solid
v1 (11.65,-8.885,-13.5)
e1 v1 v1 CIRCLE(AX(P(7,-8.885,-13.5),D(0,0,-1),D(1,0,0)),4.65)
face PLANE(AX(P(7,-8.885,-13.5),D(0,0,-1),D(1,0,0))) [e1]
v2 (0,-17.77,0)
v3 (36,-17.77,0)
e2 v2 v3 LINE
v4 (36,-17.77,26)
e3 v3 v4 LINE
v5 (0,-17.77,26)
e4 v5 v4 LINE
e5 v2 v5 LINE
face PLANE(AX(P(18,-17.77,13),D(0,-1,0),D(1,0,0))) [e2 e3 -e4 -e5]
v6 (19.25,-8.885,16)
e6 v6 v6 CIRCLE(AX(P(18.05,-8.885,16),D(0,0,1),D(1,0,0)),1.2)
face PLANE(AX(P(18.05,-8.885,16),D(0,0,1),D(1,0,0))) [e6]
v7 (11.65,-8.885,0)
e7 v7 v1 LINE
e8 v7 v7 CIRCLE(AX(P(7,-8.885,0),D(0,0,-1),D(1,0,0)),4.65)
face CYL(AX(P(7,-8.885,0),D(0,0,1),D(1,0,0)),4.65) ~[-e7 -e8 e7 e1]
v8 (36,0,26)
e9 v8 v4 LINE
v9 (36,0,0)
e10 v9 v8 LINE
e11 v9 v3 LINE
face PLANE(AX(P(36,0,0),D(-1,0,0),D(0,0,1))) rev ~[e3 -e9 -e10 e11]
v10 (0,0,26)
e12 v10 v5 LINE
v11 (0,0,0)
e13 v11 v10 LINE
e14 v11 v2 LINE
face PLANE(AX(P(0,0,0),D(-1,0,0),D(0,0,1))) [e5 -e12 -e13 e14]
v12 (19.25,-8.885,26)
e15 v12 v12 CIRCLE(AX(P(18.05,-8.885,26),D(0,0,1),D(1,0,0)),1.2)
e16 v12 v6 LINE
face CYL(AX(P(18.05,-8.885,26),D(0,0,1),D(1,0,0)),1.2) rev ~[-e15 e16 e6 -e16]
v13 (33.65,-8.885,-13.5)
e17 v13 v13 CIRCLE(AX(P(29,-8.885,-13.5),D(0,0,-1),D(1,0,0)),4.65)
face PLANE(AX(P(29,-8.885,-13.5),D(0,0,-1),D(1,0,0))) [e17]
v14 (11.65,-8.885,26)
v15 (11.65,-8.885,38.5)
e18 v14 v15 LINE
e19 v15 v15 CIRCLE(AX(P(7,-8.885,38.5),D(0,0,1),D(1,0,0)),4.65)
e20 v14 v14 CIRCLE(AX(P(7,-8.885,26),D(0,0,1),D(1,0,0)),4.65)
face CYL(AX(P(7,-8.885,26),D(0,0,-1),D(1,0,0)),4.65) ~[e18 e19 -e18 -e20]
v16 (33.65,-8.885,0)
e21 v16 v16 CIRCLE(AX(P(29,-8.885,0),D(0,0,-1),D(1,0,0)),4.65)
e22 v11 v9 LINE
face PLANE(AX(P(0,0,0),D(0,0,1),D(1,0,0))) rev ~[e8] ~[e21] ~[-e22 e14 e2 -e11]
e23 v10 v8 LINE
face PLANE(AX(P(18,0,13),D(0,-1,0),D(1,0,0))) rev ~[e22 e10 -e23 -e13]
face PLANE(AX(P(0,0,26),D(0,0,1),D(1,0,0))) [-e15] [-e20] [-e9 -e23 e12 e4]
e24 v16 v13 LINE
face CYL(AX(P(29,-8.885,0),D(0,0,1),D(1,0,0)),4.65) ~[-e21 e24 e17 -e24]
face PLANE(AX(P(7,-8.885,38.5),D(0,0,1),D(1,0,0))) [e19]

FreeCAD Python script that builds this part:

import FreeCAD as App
import Part
import Sketcher
from FreeCAD import Vector
Q = App.Units.Quantity


def add_polygon(sketch, points):
    """Adds a closed chain of lines whose ends are joined by coincident constraints."""
    first, n = sketch.GeometryCount, len(points)
    for a, b in zip(points, points[1:] + points[:1]):
        sketch.addGeometry(Part.LineSegment(App.Vector(*a, 0), App.Vector(*b, 0)), False)
    for i in range(n):
        sketch.addConstraint(Sketcher.Constraint("Coincident", first + i, 2, first + (i + 1) % n, 1))

doc = App.newDocument("Part")
params = doc.addObject("Spreadsheet::Sheet", "Params")
for row, (alias, value) in enumerate([
    ("sketch1_width", "36 mm"),
    ("sketch1_height", "26 mm"),
    ("pad1_length", "17.77 mm"),
    ("sketch2_diameter", "9.3 mm"),
    ("pad2_length", "12.5 mm"),
    ("sketch3_diameter", "2.4 mm"),
    ("pocket1_length", "10 mm"),
    ("sketch4_diameter", "9.3 mm"),
    ("pad3_length", "13.5 mm"),
], start=1):
    params.set(f"A{row}", alias)
    params.set(f"B{row}", "=" + value)
    params.setAlias(f"B{row}", alias)

body = doc.addObject("PartDesign::Body", "Body")

# Sketch on XZ plane
sketch1 = doc.addObject("Sketcher::SketchObject", "Sketch")
body.addObject(sketch1)
sketch1.AttachmentSupport = (doc.XZ_Plane, [""])
sketch1.MapMode = "FlatFace"
add_polygon(sketch1, [(0, 26), (0, 0), (36, 0), (36, 26)])  # lines 0-3
sketch1.addConstraint([
    Sketcher.Constraint("Vertical", 0),
    Sketcher.Constraint("Horizontal", 1),
    Sketcher.Constraint("Vertical", 2),
    Sketcher.Constraint("Horizontal", 3),
    Sketcher.Constraint("Coincident", 0, 2, -1, 1),
    Sketcher.Constraint("DistanceX", 1, 1, 1, 2, Q("36 mm")),
    Sketcher.Constraint("DistanceY", 0, 2, 0, 1, Q("26 mm")),
])
sketch1.setExpression("Constraints[9]", "Params.sketch1_width")
sketch1.setExpression("Constraints[10]", "Params.sketch1_height")
pad1 = doc.addObject("PartDesign::Pad", "Pad")
body.addObject(pad1)
pad1.Profile = sketch1
pad1.setExpression("Length", "Params.pad1_length")

# Sketch on XY plane
sketch2 = doc.addObject("Sketcher::SketchObject", "Sketch001")
body.addObject(sketch2)
sketch2.AttachmentSupport = (doc.XY_Plane, [""])
sketch2.MapMode = "FlatFace"
sketch2.AttachmentOffset = App.Placement(Vector(0, 0, 26), App.Rotation())
sketch2.addGeometry(Part.Circle(Vector(7, -8.9, 0), Vector(0, 0, 1), 4.7), False)
sketch2.addConstraint([
    Sketcher.Constraint("Diameter", 0, Q("9.3 mm")),
    Sketcher.Constraint("DistanceX", -1, 1, 0, 3, Q("7 mm")),
    Sketcher.Constraint("DistanceY", 0, 3, -1, 1, Q("8.885 mm")),
])
sketch2.setExpression("Constraints[0]", "Params.sketch2_diameter")
pad2 = doc.addObject("PartDesign::Pad", "Pad001")
body.addObject(pad2)
pad2.Profile = sketch2
pad2.setExpression("Length", "Params.pad2_length")

# Sketch on XY plane
sketch3 = doc.addObject("Sketcher::SketchObject", "Sketch002")
body.addObject(sketch3)
sketch3.AttachmentSupport = (doc.XY_Plane, [""])
sketch3.MapMode = "FlatFace"
sketch3.AttachmentOffset = App.Placement(Vector(0, 0, 26), App.Rotation())
sketch3.addGeometry(Part.Circle(Vector(18.1, -8.9, 0), Vector(0, 0, 1), 1.2), False)
sketch3.addConstraint([
    Sketcher.Constraint("Diameter", 0, Q("2.4 mm")),
    Sketcher.Constraint("DistanceX", -1, 1, 0, 3, Q("18.05 mm")),
    Sketcher.Constraint("DistanceY", 0, 3, -1, 1, Q("8.885 mm")),
])
sketch3.setExpression("Constraints[0]", "Params.sketch3_diameter")
pocket1 = doc.addObject("PartDesign::Pocket", "Pocket")
body.addObject(pocket1)
pocket1.Profile = sketch3
pocket1.setExpression("Length", "Params.pocket1_length")

# Sketch on XY plane
sketch4 = doc.addObject("Sketcher::SketchObject", "Sketch003")
body.addObject(sketch4)
sketch4.AttachmentSupport = (doc.XY_Plane, [""])
sketch4.MapMode = "FlatFace"
sketch4.addGeometry([
    Part.Circle(Vector(7, -8.9, 0), Vector(0, 0, 1), 4.7),
    Part.Circle(Vector(29, -8.9, 0), Vector(0, 0, 1), 4.7),
], False)
sketch4.addConstraint([
    Sketcher.Constraint("Equal", 0, 1),
    Sketcher.Constraint("Horizontal", 0, 3, 1, 3),
    Sketcher.Constraint("Diameter", 0, Q("9.3 mm")),
    Sketcher.Constraint("DistanceX", -1, 1, 0, 3, Q("7 mm")),
    Sketcher.Constraint("DistanceX", -1, 1, 1, 3, Q("29 mm")),
    Sketcher.Constraint("DistanceY", 0, 3, -1, 1, Q("8.885 mm")),
])
sketch4.setExpression("Constraints[2]", "Params.sketch4_diameter")
pad3 = doc.addObject("PartDesign::Pad", "Pad002")
body.addObject(pad3)
pad3.Profile = sketch4
pad3.setExpression("Length", "Params.pad3_length")
pad3.Reversed = True

doc.recompute()
